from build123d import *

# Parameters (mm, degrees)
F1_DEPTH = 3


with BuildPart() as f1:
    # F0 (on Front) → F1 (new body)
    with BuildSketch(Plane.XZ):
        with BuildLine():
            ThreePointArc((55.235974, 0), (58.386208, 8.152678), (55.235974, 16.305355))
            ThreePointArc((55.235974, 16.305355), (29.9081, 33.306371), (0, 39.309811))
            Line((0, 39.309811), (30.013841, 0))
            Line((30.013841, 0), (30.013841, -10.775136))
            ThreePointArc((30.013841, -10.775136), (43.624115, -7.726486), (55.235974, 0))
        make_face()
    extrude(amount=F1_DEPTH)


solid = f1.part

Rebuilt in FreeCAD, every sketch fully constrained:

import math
import FreeCAD as App
import Part
import Sketcher
from FreeCAD import Vector

doc = App.newDocument("Part")
body = doc.addObject("PartDesign::Body", "Body")

sketch1 = body.newObject("Sketcher::SketchObject", "Sketch")
sketch1.AttachmentSupport = (doc.getObject("XZ_Plane"), [""])
sketch1.MapMode = "FlatFace"
sketch1.addGeometry([
    Part.ArcOfCircle(Part.Circle(Vector(46, 8, 0), Vector(0, 0, 1), 12), math.radians(-42), math.radians(42)),
    Part.ArcOfCircle(Part.Circle(Vector(0, -39, 0), Vector(0, 0, 1), 78), math.radians(45), math.radians(90)),
    Part.LineSegment(Vector(0, 39, 0), Vector(30, 0, 0)),
    Part.LineSegment(Vector(30, 0, 0), Vector(30, -11, 0)),
    Part.ArcOfCircle(Part.Circle(Vector(29, 27, 0), Vector(0, 0, 1), 38), math.radians(-88), math.radians(-46)),
], False)
sketch1.addConstraint([
    Sketcher.Constraint("Coincident", 0, 2, 1, 1),
    Sketcher.Constraint("Coincident", 1, 2, 2, 1),
    Sketcher.Constraint("Coincident", 2, 2, 3, 1),
    Sketcher.Constraint("Coincident", 3, 2, 4, 1),
    Sketcher.Constraint("Coincident", 4, 2, 0, 1),
    Sketcher.Constraint("Vertical", 3),
    Sketcher.Constraint("PointOnObject", 1, 2, -2),
    Sketcher.Constraint("PointOnObject", 2, 2, -1),
    Sketcher.Constraint("PointOnObject", 4, 2, -1),
    Sketcher.Constraint("Vertical", 0, 2, 4, 2),
    Sketcher.Constraint("Radius", 0, 12.124516),
    Sketcher.Constraint("Radius", 1, 78.109414),
    Sketcher.Constraint("Radius", 4, 38.242666),
    Sketcher.Constraint("Distance", 2, 49.457981),
    Sketcher.Constraint("DistanceY", 3, 2, 3, 1, 10.775136),
    Sketcher.Constraint("DistanceY", -1, 1, 4, 3, 27.441389),
    Sketcher.Constraint("DistanceY", -1, 1, 1, 2, 39.309811),
    Sketcher.Constraint("DistanceX", 4, 3, 0, 3, 17.661628),
])
pad1 = body.newObject("PartDesign::Pad", "Pad")
pad1.Profile = sketch1
pad1.Length = 3

doc.recompute()
